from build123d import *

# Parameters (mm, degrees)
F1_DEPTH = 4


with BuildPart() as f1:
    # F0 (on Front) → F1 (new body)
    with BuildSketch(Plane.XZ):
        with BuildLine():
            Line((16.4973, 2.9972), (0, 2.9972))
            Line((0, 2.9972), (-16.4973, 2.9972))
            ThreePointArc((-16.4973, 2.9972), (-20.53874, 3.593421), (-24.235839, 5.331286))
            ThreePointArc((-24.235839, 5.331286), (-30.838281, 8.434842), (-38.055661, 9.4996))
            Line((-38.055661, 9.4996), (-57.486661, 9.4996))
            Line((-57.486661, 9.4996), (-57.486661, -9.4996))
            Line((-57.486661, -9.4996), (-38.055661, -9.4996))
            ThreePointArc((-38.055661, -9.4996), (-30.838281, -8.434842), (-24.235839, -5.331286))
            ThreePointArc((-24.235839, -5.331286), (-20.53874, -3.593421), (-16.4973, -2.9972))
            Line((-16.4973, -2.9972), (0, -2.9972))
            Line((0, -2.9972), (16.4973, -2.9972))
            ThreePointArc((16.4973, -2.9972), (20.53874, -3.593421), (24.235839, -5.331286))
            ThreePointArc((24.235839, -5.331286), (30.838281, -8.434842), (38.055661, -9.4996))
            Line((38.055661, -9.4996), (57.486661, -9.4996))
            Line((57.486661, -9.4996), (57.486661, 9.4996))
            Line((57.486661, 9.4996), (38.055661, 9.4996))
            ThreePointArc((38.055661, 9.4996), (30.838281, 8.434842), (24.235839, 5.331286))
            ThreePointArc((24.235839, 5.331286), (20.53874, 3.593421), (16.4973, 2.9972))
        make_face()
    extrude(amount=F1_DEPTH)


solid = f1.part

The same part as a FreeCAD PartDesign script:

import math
import FreeCAD as App
import Part
import Sketcher
from FreeCAD import Vector
Q = App.Units.Quantity

doc = App.newDocument("Part")
body = doc.addObject("PartDesign::Body", "Body")

# Sketch on XZ plane
sketch1 = body.newObject("Sketcher::SketchObject", "Sketch")
sketch1.AttachmentSupport = (doc.getObject("XZ_Plane"), [""])
sketch1.MapMode = "FlatFace"
sketch1.addGeometry([
    Part.LineSegment(Vector(16, 3, 0), Vector(-16, 3, 0)),  # 0
    Part.ArcOfCircle(Part.Circle(Vector(-16, 17, 0), Vector(0, 0, 1), 14), math.radians(-124), math.radians(-90)),  # 1
    Part.ArcOfCircle(Part.Circle(Vector(-38, -15, 0), Vector(0, 0, 1), 25), math.radians(56), math.radians(90)),  # 2
    Part.LineSegment(Vector(-38, 9, 0), Vector(-57, 9, 0)),  # 3
    Part.LineSegment(Vector(-57, 9, 0), Vector(-57, -9, 0)),  # 4
    Part.LineSegment(Vector(-57, -9, 0), Vector(-38, -9, 0)),  # 5
    Part.ArcOfCircle(Part.Circle(Vector(-38, 15, 0), Vector(0, 0, 1), 25), math.radians(-90), math.radians(-56)),  # 6
    Part.ArcOfCircle(Part.Circle(Vector(-16, -17, 0), Vector(0, 0, 1), 14), math.radians(90), math.radians(124)),  # 7
    Part.LineSegment(Vector(-16, -3, 0), Vector(16, -3, 0)),  # 8
    Part.ArcOfCircle(Part.Circle(Vector(16, -17, 0), Vector(0, 0, 1), 14), math.radians(56), math.radians(90)),  # 9
    Part.ArcOfCircle(Part.Circle(Vector(38, 15, 0), Vector(0, 0, 1), 25), math.radians(-124), math.radians(-90)),  # 10
    Part.LineSegment(Vector(38, -9, 0), Vector(57, -9, 0)),  # 11
    Part.LineSegment(Vector(57, -9, 0), Vector(57, 9, 0)),  # 12
    Part.LineSegment(Vector(57, 9, 0), Vector(38, 9, 0)),  # 13
    Part.ArcOfCircle(Part.Circle(Vector(38, -15, 0), Vector(0, 0, 1), 25), math.radians(90), math.radians(124)),  # 14
    Part.ArcOfCircle(Part.Circle(Vector(16, 17, 0), Vector(0, 0, 1), 14), math.radians(-90), math.radians(-56)),  # 15
], False)
sketch1.addConstraint([
    Sketcher.Constraint("Tangent", 0, 2, 1, 2),
    Sketcher.Constraint("Tangent", 1, 1, 2, 1),
    Sketcher.Constraint("Tangent", 2, 2, 3, 1),
    Sketcher.Constraint("Coincident", 3, 2, 4, 1),
    Sketcher.Constraint("Coincident", 4, 2, 5, 1),
    Sketcher.Constraint("Tangent", 5, 2, 6, 1),
    Sketcher.Constraint("Tangent", 6, 2, 7, 2),
    Sketcher.Constraint("Tangent", 7, 1, 8, 1),
    Sketcher.Constraint("Tangent", 8, 2, 9, 2),
    Sketcher.Constraint("Tangent", 9, 1, 10, 1),
    Sketcher.Constraint("Tangent", 10, 2, 11, 1),
    Sketcher.Constraint("Coincident", 11, 2, 12, 1),
    Sketcher.Constraint("Coincident", 12, 2, 13, 1),
    Sketcher.Constraint("Tangent", 13, 2, 14, 1),
    Sketcher.Constraint("Tangent", 14, 2, 15, 2),
    Sketcher.Constraint("Tangent", 15, 1, 0, 1),
    Sketcher.Constraint("Horizontal", 0),
    Sketcher.Constraint("Horizontal", 3),
    Sketcher.Constraint("Vertical", 4),
    Sketcher.Constraint("Horizontal", 5),
    Sketcher.Constraint("Horizontal", 8),
    Sketcher.Constraint("Horizontal", 11),
    Sketcher.Constraint("Vertical", 12),
    Sketcher.Constraint("Horizontal", 13),
    Sketcher.Constraint("Equal", 2, 6),
    Sketcher.Constraint("Equal", 1, 7),
    Sketcher.Constraint("Equal", 7, 9),
    Sketcher.Constraint("Equal", 6, 10),
    Sketcher.Constraint("Equal", 10, 14),
    Sketcher.Constraint("Equal", 9, 15),
    Sketcher.Constraint("Symmetric", 1, 3, 9, 3, -1, 1),
    Sketcher.Constraint("Symmetric", 6, 3, 14, 3, -1, 1),
    Sketcher.Constraint("Symmetric", 3, 2, 11, 2, -1, 1),
    Sketcher.Constraint("Symmetric", 6, 3, 10, 3, -2),
    Sketcher.Constraint("DistanceX", 0, 2, 0, 1, Q("1.299 in")),
    Sketcher.Constraint("DistanceX", 3, 2, 3, 1, Q("0.765 in")),
    Sketcher.Constraint("DistanceY", 4, 2, 4, 1, Q("0.748 in")),
    Sketcher.Constraint("DistanceY", -1, 1, 0, 2, Q("0.118 in")),
    Sketcher.Constraint("Radius", 2, 24.993589),
    Sketcher.Constraint("DistanceY", 6, 3, 1, 3, Q("0.0590001 in")),
])
pad1 = body.newObject("PartDesign::Pad", "Pad")
pad1.Profile = sketch1
pad1.Length = 4

doc.recompute()
